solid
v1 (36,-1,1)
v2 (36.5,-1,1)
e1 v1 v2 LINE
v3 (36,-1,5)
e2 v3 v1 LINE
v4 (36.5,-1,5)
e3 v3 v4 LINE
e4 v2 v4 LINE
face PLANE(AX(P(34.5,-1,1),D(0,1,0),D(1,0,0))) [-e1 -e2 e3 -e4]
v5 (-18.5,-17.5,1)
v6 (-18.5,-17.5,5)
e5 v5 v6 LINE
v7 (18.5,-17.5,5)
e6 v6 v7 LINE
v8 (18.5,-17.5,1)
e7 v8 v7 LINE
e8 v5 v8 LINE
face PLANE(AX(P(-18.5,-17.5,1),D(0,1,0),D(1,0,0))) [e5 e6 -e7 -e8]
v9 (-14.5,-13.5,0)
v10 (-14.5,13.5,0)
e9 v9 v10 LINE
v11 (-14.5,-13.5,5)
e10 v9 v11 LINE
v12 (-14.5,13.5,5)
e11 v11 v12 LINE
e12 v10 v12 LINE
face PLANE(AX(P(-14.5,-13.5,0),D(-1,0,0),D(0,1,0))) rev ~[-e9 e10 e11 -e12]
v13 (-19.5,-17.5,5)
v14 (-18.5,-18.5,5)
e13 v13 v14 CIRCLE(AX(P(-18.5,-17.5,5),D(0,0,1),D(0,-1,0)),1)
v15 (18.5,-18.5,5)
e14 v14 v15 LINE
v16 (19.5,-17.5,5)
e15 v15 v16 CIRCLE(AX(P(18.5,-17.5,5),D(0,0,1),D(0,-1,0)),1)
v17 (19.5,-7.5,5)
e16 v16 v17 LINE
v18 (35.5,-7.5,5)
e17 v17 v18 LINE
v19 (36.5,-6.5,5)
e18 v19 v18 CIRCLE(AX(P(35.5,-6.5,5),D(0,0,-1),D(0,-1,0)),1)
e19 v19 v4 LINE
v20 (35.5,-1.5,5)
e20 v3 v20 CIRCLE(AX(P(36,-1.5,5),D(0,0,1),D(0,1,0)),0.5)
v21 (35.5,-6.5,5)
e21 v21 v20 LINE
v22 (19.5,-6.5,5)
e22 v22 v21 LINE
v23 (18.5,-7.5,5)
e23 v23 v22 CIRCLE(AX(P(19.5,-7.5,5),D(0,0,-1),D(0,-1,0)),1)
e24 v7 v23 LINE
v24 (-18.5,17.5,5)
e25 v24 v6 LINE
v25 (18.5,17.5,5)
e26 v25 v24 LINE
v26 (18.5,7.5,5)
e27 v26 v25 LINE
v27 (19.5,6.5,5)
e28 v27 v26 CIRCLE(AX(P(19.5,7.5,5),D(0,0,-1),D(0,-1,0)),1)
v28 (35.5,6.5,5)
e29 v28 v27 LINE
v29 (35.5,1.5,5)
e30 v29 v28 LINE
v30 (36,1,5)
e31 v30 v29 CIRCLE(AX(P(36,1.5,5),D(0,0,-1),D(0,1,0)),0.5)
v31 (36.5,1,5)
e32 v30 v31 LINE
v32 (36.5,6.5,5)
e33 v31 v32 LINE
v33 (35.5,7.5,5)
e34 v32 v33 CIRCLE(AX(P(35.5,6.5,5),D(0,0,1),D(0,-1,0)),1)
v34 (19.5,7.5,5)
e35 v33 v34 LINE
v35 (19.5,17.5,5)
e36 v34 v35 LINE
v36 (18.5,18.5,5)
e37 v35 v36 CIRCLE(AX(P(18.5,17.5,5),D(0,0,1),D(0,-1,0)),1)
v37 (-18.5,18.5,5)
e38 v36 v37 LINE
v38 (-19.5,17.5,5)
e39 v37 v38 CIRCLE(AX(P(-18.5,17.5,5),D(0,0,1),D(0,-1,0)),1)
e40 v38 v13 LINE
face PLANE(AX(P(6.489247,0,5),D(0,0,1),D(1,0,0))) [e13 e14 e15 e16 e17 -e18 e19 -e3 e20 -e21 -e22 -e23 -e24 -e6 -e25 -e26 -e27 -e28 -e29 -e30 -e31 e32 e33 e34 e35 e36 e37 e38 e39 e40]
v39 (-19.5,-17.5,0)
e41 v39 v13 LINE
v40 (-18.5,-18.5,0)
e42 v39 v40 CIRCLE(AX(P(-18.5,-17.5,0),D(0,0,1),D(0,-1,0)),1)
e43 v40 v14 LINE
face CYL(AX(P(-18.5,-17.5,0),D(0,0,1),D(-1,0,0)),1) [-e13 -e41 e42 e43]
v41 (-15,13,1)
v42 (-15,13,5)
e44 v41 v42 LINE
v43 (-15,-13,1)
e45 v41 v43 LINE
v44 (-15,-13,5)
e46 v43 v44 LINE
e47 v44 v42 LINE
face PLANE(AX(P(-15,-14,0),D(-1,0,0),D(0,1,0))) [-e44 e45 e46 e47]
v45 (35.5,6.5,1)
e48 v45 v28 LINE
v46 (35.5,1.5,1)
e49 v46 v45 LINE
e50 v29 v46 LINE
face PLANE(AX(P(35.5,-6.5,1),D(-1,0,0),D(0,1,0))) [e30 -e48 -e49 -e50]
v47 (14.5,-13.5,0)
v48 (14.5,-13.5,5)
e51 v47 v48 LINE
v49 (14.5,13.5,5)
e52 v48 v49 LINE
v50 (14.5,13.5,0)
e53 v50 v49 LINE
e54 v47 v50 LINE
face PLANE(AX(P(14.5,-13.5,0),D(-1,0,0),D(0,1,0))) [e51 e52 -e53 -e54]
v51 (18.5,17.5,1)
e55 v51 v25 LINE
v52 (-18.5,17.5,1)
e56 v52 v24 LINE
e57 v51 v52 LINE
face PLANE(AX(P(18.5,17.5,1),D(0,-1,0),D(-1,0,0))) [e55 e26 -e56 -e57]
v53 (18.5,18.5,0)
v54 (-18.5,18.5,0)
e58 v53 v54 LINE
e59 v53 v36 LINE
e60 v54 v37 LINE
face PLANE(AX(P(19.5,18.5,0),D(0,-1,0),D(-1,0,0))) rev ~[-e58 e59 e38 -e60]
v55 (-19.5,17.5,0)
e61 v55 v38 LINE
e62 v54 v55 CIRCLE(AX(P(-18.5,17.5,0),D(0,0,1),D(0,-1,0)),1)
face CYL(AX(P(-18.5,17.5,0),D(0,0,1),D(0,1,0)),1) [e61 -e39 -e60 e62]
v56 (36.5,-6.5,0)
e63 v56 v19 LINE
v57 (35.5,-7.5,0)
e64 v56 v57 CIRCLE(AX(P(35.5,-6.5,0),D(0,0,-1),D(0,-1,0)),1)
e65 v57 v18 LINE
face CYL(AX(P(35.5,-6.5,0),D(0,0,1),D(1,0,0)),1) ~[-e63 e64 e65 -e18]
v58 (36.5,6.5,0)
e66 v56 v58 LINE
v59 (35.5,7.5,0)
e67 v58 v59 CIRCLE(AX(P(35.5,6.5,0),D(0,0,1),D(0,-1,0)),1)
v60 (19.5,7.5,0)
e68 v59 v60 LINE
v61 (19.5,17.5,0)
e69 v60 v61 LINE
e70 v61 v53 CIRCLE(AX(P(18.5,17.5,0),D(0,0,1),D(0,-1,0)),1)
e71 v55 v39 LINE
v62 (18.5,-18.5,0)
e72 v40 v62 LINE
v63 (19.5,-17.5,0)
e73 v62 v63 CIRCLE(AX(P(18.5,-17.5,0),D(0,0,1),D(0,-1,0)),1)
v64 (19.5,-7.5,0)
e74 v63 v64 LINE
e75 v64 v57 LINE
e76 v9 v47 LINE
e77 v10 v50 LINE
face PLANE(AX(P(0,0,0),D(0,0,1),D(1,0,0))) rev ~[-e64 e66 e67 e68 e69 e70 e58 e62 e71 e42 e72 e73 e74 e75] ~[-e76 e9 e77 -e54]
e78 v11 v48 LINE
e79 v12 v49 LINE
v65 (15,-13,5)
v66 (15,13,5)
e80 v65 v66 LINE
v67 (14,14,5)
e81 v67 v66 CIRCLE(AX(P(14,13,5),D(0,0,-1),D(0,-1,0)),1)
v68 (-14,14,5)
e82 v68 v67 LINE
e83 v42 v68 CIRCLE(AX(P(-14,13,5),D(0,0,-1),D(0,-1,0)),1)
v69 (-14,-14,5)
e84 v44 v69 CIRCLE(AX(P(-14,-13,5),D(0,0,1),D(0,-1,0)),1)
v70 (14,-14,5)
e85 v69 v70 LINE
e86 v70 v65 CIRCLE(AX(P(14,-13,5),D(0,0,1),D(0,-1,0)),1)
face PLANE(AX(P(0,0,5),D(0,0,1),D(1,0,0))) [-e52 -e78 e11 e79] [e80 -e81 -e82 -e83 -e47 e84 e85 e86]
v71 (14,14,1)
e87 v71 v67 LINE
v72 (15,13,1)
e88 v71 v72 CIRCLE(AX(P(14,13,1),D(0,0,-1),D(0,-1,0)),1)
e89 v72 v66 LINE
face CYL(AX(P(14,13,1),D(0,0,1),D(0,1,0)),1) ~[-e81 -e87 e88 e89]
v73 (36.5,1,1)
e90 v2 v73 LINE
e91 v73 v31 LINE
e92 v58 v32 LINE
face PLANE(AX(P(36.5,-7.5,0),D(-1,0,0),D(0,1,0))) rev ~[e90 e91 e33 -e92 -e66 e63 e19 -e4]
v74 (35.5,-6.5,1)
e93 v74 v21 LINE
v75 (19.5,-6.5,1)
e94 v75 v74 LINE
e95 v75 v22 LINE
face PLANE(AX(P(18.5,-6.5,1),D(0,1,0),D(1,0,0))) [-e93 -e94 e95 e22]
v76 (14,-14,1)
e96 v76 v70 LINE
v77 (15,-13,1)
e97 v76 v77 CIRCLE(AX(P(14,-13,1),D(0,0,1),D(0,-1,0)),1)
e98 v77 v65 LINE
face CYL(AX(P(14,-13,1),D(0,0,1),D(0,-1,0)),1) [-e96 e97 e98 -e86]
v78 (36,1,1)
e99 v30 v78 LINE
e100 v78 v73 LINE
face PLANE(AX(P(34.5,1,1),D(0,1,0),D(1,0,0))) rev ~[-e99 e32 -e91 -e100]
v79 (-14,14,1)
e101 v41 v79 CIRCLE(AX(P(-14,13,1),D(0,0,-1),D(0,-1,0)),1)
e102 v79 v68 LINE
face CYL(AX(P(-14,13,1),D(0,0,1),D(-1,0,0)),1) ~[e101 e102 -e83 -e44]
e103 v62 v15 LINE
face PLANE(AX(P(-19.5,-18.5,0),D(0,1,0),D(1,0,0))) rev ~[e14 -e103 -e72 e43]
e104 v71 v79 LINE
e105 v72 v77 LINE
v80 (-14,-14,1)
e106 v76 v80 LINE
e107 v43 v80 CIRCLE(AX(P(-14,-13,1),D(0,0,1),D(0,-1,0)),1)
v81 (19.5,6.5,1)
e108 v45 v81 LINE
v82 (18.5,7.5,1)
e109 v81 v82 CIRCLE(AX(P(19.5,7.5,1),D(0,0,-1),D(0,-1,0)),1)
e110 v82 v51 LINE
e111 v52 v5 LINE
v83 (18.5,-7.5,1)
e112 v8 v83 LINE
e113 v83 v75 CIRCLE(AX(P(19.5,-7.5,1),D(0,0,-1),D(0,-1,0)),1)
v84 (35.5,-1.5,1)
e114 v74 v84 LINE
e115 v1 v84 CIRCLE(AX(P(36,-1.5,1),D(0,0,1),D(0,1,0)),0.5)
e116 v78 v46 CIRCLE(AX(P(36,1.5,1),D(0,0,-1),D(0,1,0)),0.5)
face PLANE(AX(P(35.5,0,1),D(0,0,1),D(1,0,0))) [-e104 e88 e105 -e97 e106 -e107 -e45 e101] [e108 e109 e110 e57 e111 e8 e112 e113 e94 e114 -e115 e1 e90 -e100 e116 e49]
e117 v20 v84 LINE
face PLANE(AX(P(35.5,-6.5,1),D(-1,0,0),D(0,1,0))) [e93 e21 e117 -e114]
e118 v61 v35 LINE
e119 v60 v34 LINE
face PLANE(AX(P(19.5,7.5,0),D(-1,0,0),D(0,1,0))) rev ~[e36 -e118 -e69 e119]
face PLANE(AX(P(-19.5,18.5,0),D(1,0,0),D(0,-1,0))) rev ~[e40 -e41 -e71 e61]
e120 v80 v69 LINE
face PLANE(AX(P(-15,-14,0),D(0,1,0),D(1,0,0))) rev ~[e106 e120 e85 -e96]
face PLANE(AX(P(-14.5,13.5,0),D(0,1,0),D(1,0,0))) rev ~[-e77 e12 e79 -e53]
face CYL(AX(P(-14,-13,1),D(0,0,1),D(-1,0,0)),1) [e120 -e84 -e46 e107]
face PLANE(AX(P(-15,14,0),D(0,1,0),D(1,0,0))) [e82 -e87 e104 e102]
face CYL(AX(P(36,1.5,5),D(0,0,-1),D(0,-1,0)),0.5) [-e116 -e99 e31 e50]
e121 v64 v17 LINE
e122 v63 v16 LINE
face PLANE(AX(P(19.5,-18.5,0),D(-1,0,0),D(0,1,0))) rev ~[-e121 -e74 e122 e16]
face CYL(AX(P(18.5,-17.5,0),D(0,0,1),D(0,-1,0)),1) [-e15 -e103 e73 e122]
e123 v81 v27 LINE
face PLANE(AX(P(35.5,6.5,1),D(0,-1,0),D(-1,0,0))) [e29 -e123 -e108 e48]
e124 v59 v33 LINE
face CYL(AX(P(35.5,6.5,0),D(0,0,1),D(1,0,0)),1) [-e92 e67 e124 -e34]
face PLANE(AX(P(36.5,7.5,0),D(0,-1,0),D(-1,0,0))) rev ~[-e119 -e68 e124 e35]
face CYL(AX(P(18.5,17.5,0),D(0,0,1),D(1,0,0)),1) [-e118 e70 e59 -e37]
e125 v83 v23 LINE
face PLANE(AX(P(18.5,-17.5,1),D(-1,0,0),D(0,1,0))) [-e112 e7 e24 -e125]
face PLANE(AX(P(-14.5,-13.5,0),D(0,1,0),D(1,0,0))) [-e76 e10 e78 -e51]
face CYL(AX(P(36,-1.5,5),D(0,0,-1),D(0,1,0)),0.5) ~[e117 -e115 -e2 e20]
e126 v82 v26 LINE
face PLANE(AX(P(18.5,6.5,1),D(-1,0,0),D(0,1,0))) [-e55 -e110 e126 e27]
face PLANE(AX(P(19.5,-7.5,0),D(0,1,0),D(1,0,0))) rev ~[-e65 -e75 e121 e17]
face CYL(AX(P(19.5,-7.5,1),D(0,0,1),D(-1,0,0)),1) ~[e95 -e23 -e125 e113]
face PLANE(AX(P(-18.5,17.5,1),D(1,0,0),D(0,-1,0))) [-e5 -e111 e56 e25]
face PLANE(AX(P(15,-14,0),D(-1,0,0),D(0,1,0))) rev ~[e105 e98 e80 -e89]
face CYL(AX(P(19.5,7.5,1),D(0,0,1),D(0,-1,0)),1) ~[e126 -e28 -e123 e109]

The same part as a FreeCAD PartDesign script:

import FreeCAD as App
import Part
import Sketcher
from FreeCAD import Vector


def edges_at(feature, points):
    """Names of the edges that pass closest to the given points."""
    edges = feature.Shape.Edges
    near = lambda p: min(range(len(edges)), key=lambda i: edges[i].distToShape(Part.Vertex(*p))[0])
    return sorted({f"Edge{near(p) + 1}" for p in points})

doc = App.newDocument("Part")
params = doc.addObject("Spreadsheet::Sheet", "Params")
for row, (alias, value) in enumerate([
    ("sketch1_width", "17 mm"),
    ("sketch1_width2", "39 mm"),
    ("sketch1_height", "11 mm"),
    ("sketch1_height2", "37 mm"),
    ("pad1_length", "5 mm"),
    ("sketch2_width", "17 mm"),
    ("sketch2_width2", "37 mm"),
    ("sketch2_height", "11 mm"),
    ("sketch2_height2", "35 mm"),
    ("pocket1_length", "4 mm"),
    ("sketch3_width", "30 mm"),
    ("sketch3_height", "28 mm"),
    ("pad2_length", "5 mm"),
    ("sketch4_width", "29 mm"),
    ("sketch4_height", "27 mm"),
    ("pocket2_length", "5 mm"),
    ("sketch5_width", "2 mm"),
    ("pocket3_length", "4 mm"),
    ("fillet_radius", "1 mm"),
    ("fillet2_radius", "1 mm"),
    ("fillet3_radius", "1 mm"),
    ("fillet4_radius", "0.5 mm"),
], start=1):
    params.set(f"A{row}", alias)
    params.set(f"B{row}", "=" + value)
    params.setAlias(f"B{row}", alias)

body = doc.addObject("PartDesign::Body", "Body")

sketch1 = body.newObject("Sketcher::SketchObject", "Sketch")
sketch1.AttachmentSupport = (doc.getObject("XY_Plane"), [""])
sketch1.MapMode = "FlatFace"
sketch1.addGeometry([
    Part.LineSegment(Vector(36, 8, 0), Vector(20, 8, 0)),
    Part.LineSegment(Vector(20, 8, 0), Vector(20, 18, 0)),
    Part.LineSegment(Vector(20, 18, 0), Vector(-20, 18, 0)),
    Part.LineSegment(Vector(-20, 18, 0), Vector(-20, -18, 0)),
    Part.LineSegment(Vector(-20, -18, 0), Vector(20, -18, 0)),
    Part.LineSegment(Vector(20, -18, 0), Vector(20, -8, 0)),
    Part.LineSegment(Vector(20, -8, 0), Vector(36, -8, 0)),
    Part.LineSegment(Vector(36, -8, 0), Vector(36, 8, 0)),
], False)
sketch1.addConstraint([
    Sketcher.Constraint("Coincident", 0, 2, 1, 1),
    Sketcher.Constraint("Coincident", 1, 2, 2, 1),
    Sketcher.Constraint("Coincident", 2, 2, 3, 1),
    Sketcher.Constraint("Coincident", 3, 2, 4, 1),
    Sketcher.Constraint("Coincident", 4, 2, 5, 1),
    Sketcher.Constraint("Coincident", 5, 2, 6, 1),
    Sketcher.Constraint("Coincident", 6, 2, 7, 1),
    Sketcher.Constraint("Coincident", 7, 2, 0, 1),
    Sketcher.Constraint("Horizontal", 0),
    Sketcher.Constraint("Vertical", 1),
    Sketcher.Constraint("Horizontal", 2),
    Sketcher.Constraint("Vertical", 3),
    Sketcher.Constraint("Horizontal", 4),
    Sketcher.Constraint("Vertical", 5),
    Sketcher.Constraint("Horizontal", 6),
    Sketcher.Constraint("Vertical", 7),
    Sketcher.Constraint("Symmetric", 1, 2, 3, 2, -1, 1),
    Sketcher.Constraint("Symmetric", 0, 2, 5, 2, -1),
    Sketcher.Constraint("DistanceX", 0, 2, 0, 1, 17.0),
    Sketcher.Constraint("DistanceX", 2, 2, 2, 1, 39.0),
    Sketcher.Constraint("DistanceY", 1, 1, 1, 2, 11.0),
    Sketcher.Constraint("DistanceY", 3, 2, 3, 1, 37.0),
])
sketch1.setExpression("Constraints[18]", "Params.sketch1_width")
sketch1.setExpression("Constraints[19]", "Params.sketch1_width2")
sketch1.setExpression("Constraints[20]", "Params.sketch1_height")
sketch1.setExpression("Constraints[21]", "Params.sketch1_height2")
pad1 = body.newObject("PartDesign::Pad", "Pad")
pad1.Profile = sketch1
pad1.setExpression("Length", "Params.pad1_length")

sketch2 = body.newObject("Sketcher::SketchObject", "Sketch001")
sketch2.AttachmentSupport = (doc.getObject("XY_Plane"), [""])
sketch2.MapMode = "FlatFace"
sketch2.AttachmentOffset = App.Placement(Vector(0, 0, 1), App.Rotation())
sketch2.addGeometry([
    Part.LineSegment(Vector(36, 6, 0), Vector(18, 6, 0)),
    Part.LineSegment(Vector(18, 6, 0), Vector(18, 18, 0)),
    Part.LineSegment(Vector(18, 18, 0), Vector(-18, 18, 0)),
    Part.LineSegment(Vector(-18, 18, 0), Vector(-18, -18, 0)),
    Part.LineSegment(Vector(-18, -18, 0), Vector(18, -18, 0)),
    Part.LineSegment(Vector(18, -18, 0), Vector(18, -6, 0)),
    Part.LineSegment(Vector(18, -6, 0), Vector(36, -6, 0)),
    Part.LineSegment(Vector(36, -6, 0), Vector(36, 6, 0)),
], False)
sketch2.addConstraint([
    Sketcher.Constraint("Coincident", 0, 2, 1, 1),
    Sketcher.Constraint("Coincident", 1, 2, 2, 1),
    Sketcher.Constraint("Coincident", 2, 2, 3, 1),
    Sketcher.Constraint("Coincident", 3, 2, 4, 1),
    Sketcher.Constraint("Coincident", 4, 2, 5, 1),
    Sketcher.Constraint("Coincident", 5, 2, 6, 1),
    Sketcher.Constraint("Coincident", 6, 2, 7, 1),
    Sketcher.Constraint("Coincident", 7, 2, 0, 1),
    Sketcher.Constraint("Horizontal", 0),
    Sketcher.Constraint("Vertical", 1),
    Sketcher.Constraint("Horizontal", 2),
    Sketcher.Constraint("Vertical", 3),
    Sketcher.Constraint("Horizontal", 4),
    Sketcher.Constraint("Vertical", 5),
    Sketcher.Constraint("Horizontal", 6),
    Sketcher.Constraint("Vertical", 7),
    Sketcher.Constraint("Symmetric", 1, 2, 3, 2, -1, 1),
    Sketcher.Constraint("Symmetric", 0, 2, 5, 2, -1),
    Sketcher.Constraint("DistanceX", 0, 2, 0, 1, 17.0),
    Sketcher.Constraint("DistanceX", 2, 2, 2, 1, 37.0),
    Sketcher.Constraint("DistanceY", 1, 1, 1, 2, 11.0),
    Sketcher.Constraint("DistanceY", 3, 2, 3, 1, 35.0),
])
sketch2.setExpression("Constraints[18]", "Params.sketch2_width")
sketch2.setExpression("Constraints[19]", "Params.sketch2_width2")
sketch2.setExpression("Constraints[20]", "Params.sketch2_height")
sketch2.setExpression("Constraints[21]", "Params.sketch2_height2")
pocket1 = body.newObject("PartDesign::Pocket", "Pocket")
pocket1.Profile = sketch2
pocket1.setExpression("Length", "Params.pocket1_length")
pocket1.Reversed = True

sketch3 = body.newObject("Sketcher::SketchObject", "Sketch002")
sketch3.AttachmentSupport = (doc.getObject("XY_Plane"), [""])
sketch3.MapMode = "FlatFace"
sketch3.addGeometry([
    Part.LineSegment(Vector(-15, 14, 0), Vector(-15, -14, 0)),
    Part.LineSegment(Vector(-15, -14, 0), Vector(15, -14, 0)),
    Part.LineSegment(Vector(15, -14, 0), Vector(15, 14, 0)),
    Part.LineSegment(Vector(15, 14, 0), Vector(-15, 14, 0)),
], False)
sketch3.addConstraint([
    Sketcher.Constraint("Coincident", 0, 2, 1, 1),
    Sketcher.Constraint("Coincident", 1, 2, 2, 1),
    Sketcher.Constraint("Coincident", 2, 2, 3, 1),
    Sketcher.Constraint("Coincident", 3, 2, 0, 1),
    Sketcher.Constraint("Vertical", 0),
    Sketcher.Constraint("Horizontal", 1),
    Sketcher.Constraint("Vertical", 2),
    Sketcher.Constraint("Horizontal", 3),
    Sketcher.Constraint("Symmetric", 0, 2, 2, 2, -1, 1),
    Sketcher.Constraint("DistanceX", 1, 1, 1, 2, 30.0),
    Sketcher.Constraint("DistanceY", 0, 2, 0, 1, 28.0),
])
sketch3.setExpression("Constraints[9]", "Params.sketch3_width")
sketch3.setExpression("Constraints[10]", "Params.sketch3_height")
pad2 = body.newObject("PartDesign::Pad", "Pad001")
pad2.Profile = sketch3
pad2.setExpression("Length", "Params.pad2_length")

sketch4 = body.newObject("Sketcher::SketchObject", "Sketch003")
sketch4.AttachmentSupport = (doc.getObject("XY_Plane"), [""])
sketch4.MapMode = "FlatFace"
sketch4.addGeometry([
    Part.LineSegment(Vector(-14, 14, 0), Vector(-14, -14, 0)),
    Part.LineSegment(Vector(-14, -14, 0), Vector(14, -14, 0)),
    Part.LineSegment(Vector(14, -14, 0), Vector(14, 14, 0)),
    Part.LineSegment(Vector(14, 14, 0), Vector(-14, 14, 0)),
], False)
sketch4.addConstraint([
    Sketcher.Constraint("Coincident", 0, 2, 1, 1),
    Sketcher.Constraint("Coincident", 1, 2, 2, 1),
    Sketcher.Constraint("Coincident", 2, 2, 3, 1),
    Sketcher.Constraint("Coincident", 3, 2, 0, 1),
    Sketcher.Constraint("Vertical", 0),
    Sketcher.Constraint("Horizontal", 1),
    Sketcher.Constraint("Vertical", 2),
    Sketcher.Constraint("Horizontal", 3),
    Sketcher.Constraint("Symmetric", 0, 2, 2, 2, -1, 1),
    Sketcher.Constraint("DistanceX", 1, 1, 1, 2, 29.0),
    Sketcher.Constraint("DistanceY", 0, 2, 0, 1, 27.0),
])
sketch4.setExpression("Constraints[9]", "Params.sketch4_width")
sketch4.setExpression("Constraints[10]", "Params.sketch4_height")
pocket2 = body.newObject("PartDesign::Pocket", "Pocket001")
pocket2.Profile = sketch4
pocket2.setExpression("Length", "Params.pocket2_length")
pocket2.Reversed = True

sketch5 = body.newObject("Sketcher::SketchObject", "Sketch004")
sketch5.AttachmentSupport = (doc.getObject("XY_Plane"), [""])
sketch5.MapMode = "FlatFace"
sketch5.AttachmentOffset = App.Placement(Vector(0, 0, 1), App.Rotation())
sketch5.addGeometry([
    Part.LineSegment(Vector(34.5, 1, 0), Vector(34.5, -1, 0)),
    Part.LineSegment(Vector(34.5, -1, 0), Vector(36.5, -1, 0)),
    Part.LineSegment(Vector(36.5, -1, 0), Vector(36.5, 1, 0)),
    Part.LineSegment(Vector(36.5, 1, 0), Vector(34.5, 1, 0)),
], False)
sketch5.addConstraint([
    Sketcher.Constraint("Coincident", 0, 2, 1, 1),
    Sketcher.Constraint("Coincident", 1, 2, 2, 1),
    Sketcher.Constraint("Coincident", 2, 2, 3, 1),
    Sketcher.Constraint("Coincident", 3, 2, 0, 1),
    Sketcher.Constraint("Vertical", 0),
    Sketcher.Constraint("Horizontal", 1),
    Sketcher.Constraint("Vertical", 2),
    Sketcher.Constraint("Horizontal", 3),
    Sketcher.Constraint("Equal", 3, 0),
    Sketcher.Constraint("DistanceX", 1, 1, 1, 2, 2.0),
    Sketcher.Constraint("DistanceY", 0, 2, -1, 1, 1.0),
    Sketcher.Constraint("DistanceX", -1, 1, 0, 2, 34.5),
])
sketch5.setExpression("Constraints[9]", "Params.sketch5_width")
pocket3 = body.newObject("PartDesign::Pocket", "Pocket002")
pocket3.Profile = sketch5
pocket3.setExpression("Length", "Params.pocket3_length")
pocket3.Reversed = True
doc.recompute()

fillet = body.newObject("PartDesign::Fillet", "Fillet")
fillet.Base = (pocket3, edges_at(pocket3, [
    (-15, -14, 3),
    (15, -14, 3),
    (15, 14, 3),
    (-15, 14, 3),
]))
fillet.setExpression("Radius", "Params.fillet_radius")
doc.recompute()

fillet2 = body.newObject("PartDesign::Fillet", "Fillet001")
fillet2.Base = (fillet, edges_at(fillet, [(18.5, 6.5, 3), (18.5, -6.5, 3)]))
fillet2.setExpression("Radius", "Params.fillet2_radius")
doc.recompute()

fillet3 = body.newObject("PartDesign::Fillet", "Fillet002")
fillet3.Base = (fillet2, edges_at(fillet2, [
    (-19.5, 18.5, 2.5),
    (-19.5, -18.5, 2.5),
    (19.5, 18.5, 2.5),
    (36.5, 7.5, 2.5),
    (36.5, -7.5, 2.5),
    (19.5, -18.5, 2.5),
]))
fillet3.setExpression("Radius", "Params.fillet3_radius")
doc.recompute()

fillet4 = body.newObject("PartDesign::Fillet", "Fillet003")
fillet4.Base = (fillet3, edges_at(fillet3, [(35.5, -1, 3), (35.5, 1, 3)]))
fillet4.setExpression("Radius", "Params.fillet4_radius")

doc.recompute()
